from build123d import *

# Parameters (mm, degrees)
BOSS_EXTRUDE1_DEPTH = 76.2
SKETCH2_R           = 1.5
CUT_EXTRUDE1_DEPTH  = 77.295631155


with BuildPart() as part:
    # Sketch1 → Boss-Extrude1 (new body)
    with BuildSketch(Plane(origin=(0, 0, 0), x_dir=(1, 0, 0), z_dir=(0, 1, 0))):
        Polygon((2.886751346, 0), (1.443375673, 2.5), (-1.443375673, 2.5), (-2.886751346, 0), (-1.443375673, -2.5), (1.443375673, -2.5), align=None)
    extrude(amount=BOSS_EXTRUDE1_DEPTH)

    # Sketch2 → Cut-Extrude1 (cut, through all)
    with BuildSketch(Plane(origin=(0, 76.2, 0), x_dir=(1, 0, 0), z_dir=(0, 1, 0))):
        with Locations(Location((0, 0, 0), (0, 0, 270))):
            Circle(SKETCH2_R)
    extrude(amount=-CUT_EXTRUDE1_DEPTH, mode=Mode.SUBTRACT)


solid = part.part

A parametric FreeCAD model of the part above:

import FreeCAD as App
import Part
import Sketcher

V = App.Vector
Q = App.Units.Quantity


def add_polygon(sketch, points):
    """Adds a closed chain of lines whose ends are joined by coincident constraints."""
    first, n = sketch.GeometryCount, len(points)
    for a, b in zip(points, points[1:] + points[:1]):
        sketch.addGeometry(Part.LineSegment(App.Vector(*a, 0), App.Vector(*b, 0)), False)
    for i in range(n):
        sketch.addConstraint(Sketcher.Constraint("Coincident", first + i, 2, first + (i + 1) % n, 1))

doc = App.newDocument("Part")
body = doc.addObject("PartDesign::Body", "Body")

sketch1 = body.newObject("Sketcher::SketchObject", "Sketch")
sketch1.AttachmentSupport = (doc.getObject("XZ_Plane"), [""])
sketch1.MapMode = "FlatFace"
add_polygon(sketch1, [(2.886751, 0), (1.443376, -2.5), (-1.443376, -2.5), (-2.886751, 0), (-1.443376, 2.5), (1.443376, 2.5)])
sketch1.addConstraint([
    Sketcher.Constraint("Horizontal", 1),
    Sketcher.Constraint("Horizontal", 4),
    Sketcher.Constraint("Symmetric", 0, 2, 3, 2, -1, 1),
    Sketcher.Constraint("Symmetric", 2, 2, 5, 2, -1, 1),
    Sketcher.Constraint("PointOnObject", 2, 2, -1),
    Sketcher.Constraint("Parallel", 2, 5),
    Sketcher.Constraint("Vertical", 1, 2, 3, 2),
    Sketcher.Constraint("Angle", 0, Q("-120 deg")),
    Sketcher.Constraint("DistanceY", 1, 2, 3, 2, Q("5 mm")),
    Sketcher.Constraint("DistanceX", 1, 2, 1, 1, Q("2.886751 mm")),
])
pad1 = body.newObject("PartDesign::Pad", "Pad")
pad1.Profile = sketch1
pad1.Length = 76.2
pad1.Reversed = True

sketch2 = body.newObject("Sketcher::SketchObject", "Sketch001")
sketch2.AttachmentSupport = (doc.getObject("XZ_Plane"), [""])
sketch2.MapMode = "FlatFace"
sketch2.AttachmentOffset = App.Placement(V(0, 0, -76.2), App.Rotation())
sketch2.addGeometry(Part.Circle(V(0, 0, 0), V(0, 0, 1), 1.5), False)
sketch2.addConstraint([
    Sketcher.Constraint("Coincident", 0, 3, -1, 1),
    Sketcher.Constraint("Diameter", 0, Q("3 mm")),
])
pocket1 = body.newObject("PartDesign::Pocket", "Pocket")
pocket1.Profile = sketch2
pocket1.Type = "ThroughAll"
pocket1.Reversed = True

doc.recompute()
